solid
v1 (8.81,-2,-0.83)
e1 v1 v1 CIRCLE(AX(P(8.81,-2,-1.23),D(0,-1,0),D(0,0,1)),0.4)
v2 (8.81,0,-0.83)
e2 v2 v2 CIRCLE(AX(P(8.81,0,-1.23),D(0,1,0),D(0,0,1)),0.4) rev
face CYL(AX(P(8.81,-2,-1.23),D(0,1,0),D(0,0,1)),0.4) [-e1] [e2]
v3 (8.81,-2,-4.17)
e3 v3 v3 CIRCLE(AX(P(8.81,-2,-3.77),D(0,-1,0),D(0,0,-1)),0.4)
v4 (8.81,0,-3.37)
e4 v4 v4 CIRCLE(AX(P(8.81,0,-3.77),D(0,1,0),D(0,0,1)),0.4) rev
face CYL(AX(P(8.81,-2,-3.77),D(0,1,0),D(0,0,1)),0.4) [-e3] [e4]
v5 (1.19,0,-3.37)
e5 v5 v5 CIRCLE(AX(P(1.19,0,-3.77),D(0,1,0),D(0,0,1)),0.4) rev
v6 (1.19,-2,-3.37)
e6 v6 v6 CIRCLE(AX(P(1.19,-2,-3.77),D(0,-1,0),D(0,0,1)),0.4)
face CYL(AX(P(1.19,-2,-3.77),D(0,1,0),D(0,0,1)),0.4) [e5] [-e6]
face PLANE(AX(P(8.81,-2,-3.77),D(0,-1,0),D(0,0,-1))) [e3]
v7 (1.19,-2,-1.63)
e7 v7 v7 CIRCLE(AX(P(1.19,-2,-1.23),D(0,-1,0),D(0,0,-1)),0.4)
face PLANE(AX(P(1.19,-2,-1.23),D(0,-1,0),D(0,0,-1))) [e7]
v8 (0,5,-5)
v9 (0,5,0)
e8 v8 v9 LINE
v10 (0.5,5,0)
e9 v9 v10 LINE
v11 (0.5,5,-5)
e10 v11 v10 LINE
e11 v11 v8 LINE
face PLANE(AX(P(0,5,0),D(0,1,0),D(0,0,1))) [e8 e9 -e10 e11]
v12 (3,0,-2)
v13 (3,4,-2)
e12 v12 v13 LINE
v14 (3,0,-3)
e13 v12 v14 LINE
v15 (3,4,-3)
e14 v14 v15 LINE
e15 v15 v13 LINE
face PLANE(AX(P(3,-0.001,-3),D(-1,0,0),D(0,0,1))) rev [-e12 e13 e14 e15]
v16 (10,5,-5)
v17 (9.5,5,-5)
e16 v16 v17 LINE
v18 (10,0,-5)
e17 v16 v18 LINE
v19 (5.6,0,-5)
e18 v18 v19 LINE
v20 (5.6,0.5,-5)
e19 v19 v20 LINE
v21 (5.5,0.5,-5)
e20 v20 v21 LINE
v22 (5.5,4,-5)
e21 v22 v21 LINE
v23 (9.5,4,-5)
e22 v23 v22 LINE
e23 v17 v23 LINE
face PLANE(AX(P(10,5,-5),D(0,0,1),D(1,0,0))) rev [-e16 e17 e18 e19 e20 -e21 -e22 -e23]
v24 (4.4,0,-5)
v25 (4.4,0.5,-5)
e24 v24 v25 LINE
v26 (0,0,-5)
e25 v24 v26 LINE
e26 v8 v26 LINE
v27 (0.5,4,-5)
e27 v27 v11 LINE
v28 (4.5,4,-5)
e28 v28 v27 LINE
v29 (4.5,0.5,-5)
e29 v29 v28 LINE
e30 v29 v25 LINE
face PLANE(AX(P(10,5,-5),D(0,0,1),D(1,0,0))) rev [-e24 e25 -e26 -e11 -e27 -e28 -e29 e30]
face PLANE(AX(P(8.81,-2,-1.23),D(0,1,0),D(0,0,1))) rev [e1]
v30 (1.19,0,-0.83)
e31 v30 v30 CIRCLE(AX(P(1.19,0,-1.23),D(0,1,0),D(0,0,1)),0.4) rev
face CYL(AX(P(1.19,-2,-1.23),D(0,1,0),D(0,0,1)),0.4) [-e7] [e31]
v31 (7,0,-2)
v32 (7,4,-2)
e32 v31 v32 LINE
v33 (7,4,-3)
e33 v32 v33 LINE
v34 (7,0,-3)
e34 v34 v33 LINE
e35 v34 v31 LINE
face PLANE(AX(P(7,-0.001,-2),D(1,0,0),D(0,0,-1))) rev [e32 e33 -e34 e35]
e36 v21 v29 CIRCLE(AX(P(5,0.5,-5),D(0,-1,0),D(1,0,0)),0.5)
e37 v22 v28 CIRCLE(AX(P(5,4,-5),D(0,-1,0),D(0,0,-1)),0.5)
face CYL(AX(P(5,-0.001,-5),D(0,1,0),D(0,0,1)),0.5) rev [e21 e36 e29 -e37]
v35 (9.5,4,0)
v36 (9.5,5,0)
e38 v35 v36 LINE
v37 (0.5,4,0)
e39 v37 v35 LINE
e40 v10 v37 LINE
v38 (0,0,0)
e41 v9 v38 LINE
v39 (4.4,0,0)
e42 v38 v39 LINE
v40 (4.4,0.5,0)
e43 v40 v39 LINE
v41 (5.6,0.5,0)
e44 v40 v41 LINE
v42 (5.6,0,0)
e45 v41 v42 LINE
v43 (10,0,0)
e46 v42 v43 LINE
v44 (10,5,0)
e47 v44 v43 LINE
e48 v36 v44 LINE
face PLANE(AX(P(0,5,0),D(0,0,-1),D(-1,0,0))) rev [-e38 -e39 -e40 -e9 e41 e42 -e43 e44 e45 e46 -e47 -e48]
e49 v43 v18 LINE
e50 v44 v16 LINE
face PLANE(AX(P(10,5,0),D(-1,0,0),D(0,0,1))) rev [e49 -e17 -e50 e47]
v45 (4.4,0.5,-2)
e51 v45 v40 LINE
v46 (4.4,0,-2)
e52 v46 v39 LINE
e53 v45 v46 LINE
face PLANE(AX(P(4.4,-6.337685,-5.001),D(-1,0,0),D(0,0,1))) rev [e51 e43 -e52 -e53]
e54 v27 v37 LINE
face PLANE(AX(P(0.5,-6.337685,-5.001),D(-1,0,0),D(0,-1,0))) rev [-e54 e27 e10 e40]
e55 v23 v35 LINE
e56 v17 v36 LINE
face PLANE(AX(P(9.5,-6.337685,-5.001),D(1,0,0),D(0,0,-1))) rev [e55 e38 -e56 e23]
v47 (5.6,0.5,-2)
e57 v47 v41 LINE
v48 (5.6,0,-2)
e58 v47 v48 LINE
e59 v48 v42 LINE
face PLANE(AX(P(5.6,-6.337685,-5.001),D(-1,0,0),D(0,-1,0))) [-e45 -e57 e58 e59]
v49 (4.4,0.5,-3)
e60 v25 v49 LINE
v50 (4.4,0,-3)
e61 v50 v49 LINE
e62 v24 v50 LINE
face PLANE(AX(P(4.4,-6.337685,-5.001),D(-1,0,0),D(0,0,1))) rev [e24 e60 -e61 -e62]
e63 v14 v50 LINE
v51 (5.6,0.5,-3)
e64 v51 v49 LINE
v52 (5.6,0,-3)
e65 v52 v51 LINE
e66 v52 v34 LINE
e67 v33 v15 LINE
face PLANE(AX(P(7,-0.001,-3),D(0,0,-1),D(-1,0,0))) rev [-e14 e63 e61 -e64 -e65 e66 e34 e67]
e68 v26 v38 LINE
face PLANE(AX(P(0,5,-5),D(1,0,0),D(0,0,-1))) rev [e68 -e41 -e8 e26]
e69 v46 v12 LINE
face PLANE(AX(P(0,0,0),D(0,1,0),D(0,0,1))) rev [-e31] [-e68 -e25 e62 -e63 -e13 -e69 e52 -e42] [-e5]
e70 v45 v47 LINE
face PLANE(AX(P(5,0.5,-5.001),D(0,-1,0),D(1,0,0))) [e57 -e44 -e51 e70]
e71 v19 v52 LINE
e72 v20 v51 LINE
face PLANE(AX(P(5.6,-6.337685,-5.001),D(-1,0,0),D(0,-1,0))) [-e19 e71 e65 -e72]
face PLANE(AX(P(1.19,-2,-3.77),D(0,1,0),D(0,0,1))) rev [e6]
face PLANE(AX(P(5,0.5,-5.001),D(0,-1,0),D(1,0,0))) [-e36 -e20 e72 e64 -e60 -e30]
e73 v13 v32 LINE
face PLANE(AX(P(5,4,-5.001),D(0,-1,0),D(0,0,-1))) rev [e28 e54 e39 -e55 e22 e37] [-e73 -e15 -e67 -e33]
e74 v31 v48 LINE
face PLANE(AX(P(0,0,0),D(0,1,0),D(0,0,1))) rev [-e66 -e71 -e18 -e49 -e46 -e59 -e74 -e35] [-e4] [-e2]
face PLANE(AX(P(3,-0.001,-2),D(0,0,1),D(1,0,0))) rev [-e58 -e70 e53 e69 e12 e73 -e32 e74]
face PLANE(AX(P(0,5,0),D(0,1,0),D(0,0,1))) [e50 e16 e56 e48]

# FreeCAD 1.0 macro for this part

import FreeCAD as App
import Part
import Sketcher
Q = App.Units.Quantity

doc = App.newDocument("Part")
body = doc.addObject("PartDesign::Body", "Body")

sketch1 = body.newObject("Sketcher::SketchObject", "Sketch")
sketch1.AttachmentSupport = (doc.getObject("XZ_Plane"), [""])
sketch1.MapMode = "FlatFace"
sketch1.addGeometry(Part.LineSegment(App.Vector(0, -5, 0), App.Vector(0, 0, 0)), False)
sketch1.addGeometry(Part.LineSegment(App.Vector(0, 0, 0), App.Vector(10, 0, 0)), False)
sketch1.addGeometry(Part.LineSegment(App.Vector(10, 0, 0), App.Vector(10, -5, 0)), False)
sketch1.addGeometry(Part.LineSegment(App.Vector(10, -5, 0), App.Vector(0, -5, 0)), False)
sketch1.addConstraint(Sketcher.Constraint("Coincident", 0, 2, 1, 1))
sketch1.addConstraint(Sketcher.Constraint("Coincident", 1, 2, 2, 1))
sketch1.addConstraint(Sketcher.Constraint("Coincident", 2, 2, 3, 1))
sketch1.addConstraint(Sketcher.Constraint("Coincident", 3, 2, 0, 1))
sketch1.addConstraint(Sketcher.Constraint("Vertical", 0))
sketch1.addConstraint(Sketcher.Constraint("Horizontal", 1))
sketch1.addConstraint(Sketcher.Constraint("Vertical", 2))
sketch1.addConstraint(Sketcher.Constraint("Horizontal", 3))
sketch1.addConstraint(Sketcher.Constraint("Coincident", 0, 2, -1, 1))
sketch1.addConstraint(Sketcher.Constraint("DistanceX", 1, 1, 1, 2, Q("10 mm")))
sketch1.addConstraint(Sketcher.Constraint("DistanceY", 0, 1, 0, 2, Q("5 mm")))
pad1 = body.newObject("PartDesign::Pad", "Pad")
pad1.Profile = sketch1
pad1.Length = 5
pad1.Reversed = True

sketch2 = body.newObject("Sketcher::SketchObject", "Sketch001")
sketch2.AttachmentSupport = (doc.getObject("XZ_Plane"), [""])
sketch2.MapMode = "FlatFace"
sketch2.AttachmentOffset = App.Placement(App.Vector(0, 0, -5), App.Rotation())
sketch2.addGeometry(Part.Circle(App.Vector(5, -5, 0), App.Vector(0, 0, 1), 0.5), False)
sketch2.addConstraint(Sketcher.Constraint("Diameter", 0, Q("1 mm")))
sketch2.addConstraint(Sketcher.Constraint("DistanceX", -1, 1, 0, 3, Q("5 mm")))
sketch2.addConstraint(Sketcher.Constraint("DistanceY", 0, 3, -1, 1, Q("5 mm")))
pocket1 = body.newObject("PartDesign::Pocket", "Pocket")
pocket1.Profile = sketch2
pocket1.Type = "UpToFirst"
pocket1.Reversed = True

sketch3 = body.newObject("Sketcher::SketchObject", "Sketch002")
sketch3.AttachmentSupport = (doc.getObject("XY_Plane"), [""])
sketch3.MapMode = "FlatFace"
sketch3.addGeometry(Part.LineSegment(App.Vector(0.5, 5, 0), App.Vector(0.5, 4, 0)), False)
sketch3.addGeometry(Part.LineSegment(App.Vector(0.5, 4, 0), App.Vector(5, 4, 0)), False)
sketch3.addGeometry(Part.LineSegment(App.Vector(5, 4, 0), App.Vector(5, 5, 0)), False)
sketch3.addGeometry(Part.LineSegment(App.Vector(5, 5, 0), App.Vector(0.5, 5, 0)), False)
sketch3.addConstraint(Sketcher.Constraint("Coincident", 0, 2, 1, 1))
sketch3.addConstraint(Sketcher.Constraint("Coincident", 1, 2, 2, 1))
sketch3.addConstraint(Sketcher.Constraint("Coincident", 2, 2, 3, 1))
sketch3.addConstraint(Sketcher.Constraint("Coincident", 3, 2, 0, 1))
sketch3.addConstraint(Sketcher.Constraint("Vertical", 0))
sketch3.addConstraint(Sketcher.Constraint("Horizontal", 1))
sketch3.addConstraint(Sketcher.Constraint("Vertical", 2))
sketch3.addConstraint(Sketcher.Constraint("Horizontal", 3))
sketch3.addConstraint(Sketcher.Constraint("DistanceY", 0, 2, 0, 1, Q("1 mm")))
sketch3.addConstraint(Sketcher.Constraint("DistanceX", 1, 1, 1, 2, Q("4.5 mm")))
sketch3.addConstraint(Sketcher.Constraint("DistanceY", -1, 1, 0, 2, Q("4 mm")))
sketch3.addConstraint(Sketcher.Constraint("DistanceX", -1, 1, 1, 2, Q("5 mm")))
pocket2 = body.newObject("PartDesign::Pocket", "Pocket001")
pocket2.Profile = sketch3
pocket2.Type = "UpToFirst"

sketch4 = body.newObject("Sketcher::SketchObject", "Sketch003")
sketch4.AttachmentSupport = (doc.getObject("XY_Plane"), [""])
sketch4.MapMode = "FlatFace"
sketch4.addGeometry(Part.LineSegment(App.Vector(5, 5, 0), App.Vector(5, 4, 0)), False)
sketch4.addGeometry(Part.LineSegment(App.Vector(5, 4, 0), App.Vector(9.5, 4, 0)), False)
sketch4.addGeometry(Part.LineSegment(App.Vector(9.5, 4, 0), App.Vector(9.5, 5, 0)), False)
sketch4.addGeometry(Part.LineSegment(App.Vector(9.5, 5, 0), App.Vector(5, 5, 0)), False)
sketch4.addConstraint(Sketcher.Constraint("Coincident", 0, 2, 1, 1))
sketch4.addConstraint(Sketcher.Constraint("Coincident", 1, 2, 2, 1))
sketch4.addConstraint(Sketcher.Constraint("Coincident", 2, 2, 3, 1))
sketch4.addConstraint(Sketcher.Constraint("Coincident", 3, 2, 0, 1))
sketch4.addConstraint(Sketcher.Constraint("Vertical", 0))
sketch4.addConstraint(Sketcher.Constraint("Horizontal", 1))
sketch4.addConstraint(Sketcher.Constraint("Vertical", 2))
sketch4.addConstraint(Sketcher.Constraint("Horizontal", 3))
sketch4.addConstraint(Sketcher.Constraint("DistanceY", 0, 2, 0, 1, Q("1 mm")))
sketch4.addConstraint(Sketcher.Constraint("DistanceX", 1, 1, 1, 2, Q("4.5 mm")))
sketch4.addConstraint(Sketcher.Constraint("DistanceX", -1, 1, 0, 2, Q("5 mm")))
sketch4.addConstraint(Sketcher.Constraint("DistanceY", -1, 1, 0, 2, Q("4 mm")))
pocket3 = body.newObject("PartDesign::Pocket", "Pocket002")
pocket3.Profile = sketch4
pocket3.Type = "UpToFirst"

sketch5 = body.newObject("Sketcher::SketchObject", "Sketch004")
sketch5.AttachmentSupport = (doc.getObject("XY_Plane"), [""])
sketch5.MapMode = "FlatFace"
sketch5.addGeometry(Part.LineSegment(App.Vector(4.4, 0.5, 0), App.Vector(4.4, 0, 0)), False)
sketch5.addGeometry(Part.LineSegment(App.Vector(4.4, 0, 0), App.Vector(5, 0, 0)), False)
sketch5.addGeometry(Part.LineSegment(App.Vector(5, 0, 0), App.Vector(5, 0.5, 0)), False)
sketch5.addGeometry(Part.LineSegment(App.Vector(5, 0.5, 0), App.Vector(4.4, 0.5, 0)), False)
sketch5.addConstraint(Sketcher.Constraint("Coincident", 0, 2, 1, 1))
sketch5.addConstraint(Sketcher.Constraint("Coincident", 1, 2, 2, 1))
sketch5.addConstraint(Sketcher.Constraint("Coincident", 2, 2, 3, 1))
sketch5.addConstraint(Sketcher.Constraint("Coincident", 3, 2, 0, 1))
sketch5.addConstraint(Sketcher.Constraint("Vertical", 0))
sketch5.addConstraint(Sketcher.Constraint("Horizontal", 1))
sketch5.addConstraint(Sketcher.Constraint("Vertical", 2))
sketch5.addConstraint(Sketcher.Constraint("Horizontal", 3))
sketch5.addConstraint(Sketcher.Constraint("PointOnObject", 0, 2, -1))
sketch5.addConstraint(Sketcher.Constraint("DistanceX", 1, 1, 1, 2, Q("0.6 mm")))
sketch5.addConstraint(Sketcher.Constraint("DistanceY", 0, 2, 0, 1, Q("0.5 mm")))
sketch5.addConstraint(Sketcher.Constraint("DistanceX", -1, 1, 1, 2, Q("5 mm")))
pocket4 = body.newObject("PartDesign::Pocket", "Pocket003")
pocket4.Profile = sketch5
pocket4.Type = "UpToFirst"

sketch6 = body.newObject("Sketcher::SketchObject", "Sketch005")
sketch6.AttachmentSupport = (doc.getObject("XY_Plane"), [""])
sketch6.MapMode = "FlatFace"
sketch6.addGeometry(Part.LineSegment(App.Vector(5, 0.5, 0), App.Vector(5, 0, 0)), False)
sketch6.addGeometry(Part.LineSegment(App.Vector(5, 0, 0), App.Vector(5.6, 0, 0)), False)
sketch6.addGeometry(Part.LineSegment(App.Vector(5.6, 0, 0), App.Vector(5.6, 0.5, 0)), False)
sketch6.addGeometry(Part.LineSegment(App.Vector(5.6, 0.5, 0), App.Vector(5, 0.5, 0)), False)
sketch6.addConstraint(Sketcher.Constraint("Coincident", 0, 2, 1, 1))
sketch6.addConstraint(Sketcher.Constraint("Coincident", 1, 2, 2, 1))
sketch6.addConstraint(Sketcher.Constraint("Coincident", 2, 2, 3, 1))
sketch6.addConstraint(Sketcher.Constraint("Coincident", 3, 2, 0, 1))
sketch6.addConstraint(Sketcher.Constraint("Vertical", 0))
sketch6.addConstraint(Sketcher.Constraint("Horizontal", 1))
sketch6.addConstraint(Sketcher.Constraint("Vertical", 2))
sketch6.addConstraint(Sketcher.Constraint("Horizontal", 3))
sketch6.addConstraint(Sketcher.Constraint("PointOnObject", 0, 2, -1))
sketch6.addConstraint(Sketcher.Constraint("DistanceX", 1, 1, 1, 2, Q("0.6 mm")))
sketch6.addConstraint(Sketcher.Constraint("DistanceY", 0, 2, 0, 1, Q("0.5 mm")))
sketch6.addConstraint(Sketcher.Constraint("DistanceX", -1, 1, 0, 2, Q("5 mm")))
pocket5 = body.newObject("PartDesign::Pocket", "Pocket004")
pocket5.Profile = sketch6
pocket5.Type = "UpToFirst"

sketch7 = body.newObject("Sketcher::SketchObject", "Sketch006")
sketch7.AttachmentSupport = (doc.getObject("XZ_Plane"), [""])
sketch7.MapMode = "FlatFace"
sketch7.AttachmentOffset = App.Placement(App.Vector(0, 0, -4), App.Rotation())
sketch7.addGeometry(Part.LineSegment(App.Vector(3, -3, 0), App.Vector(3, -2, 0)), False)
sketch7.addGeometry(Part.LineSegment(App.Vector(3, -2, 0), App.Vector(7, -2, 0)), False)
sketch7.addGeometry(Part.LineSegment(App.Vector(7, -2, 0), App.Vector(7, -3, 0)), False)
sketch7.addGeometry(Part.LineSegment(App.Vector(7, -3, 0), App.Vector(3, -3, 0)), False)
sketch7.addConstraint(Sketcher.Constraint("Coincident", 0, 2, 1, 1))
sketch7.addConstraint(Sketcher.Constraint("Coincident", 1, 2, 2, 1))
sketch7.addConstraint(Sketcher.Constraint("Coincident", 2, 2, 3, 1))
sketch7.addConstraint(Sketcher.Constraint("Coincident", 3, 2, 0, 1))
sketch7.addConstraint(Sketcher.Constraint("Vertical", 0))
sketch7.addConstraint(Sketcher.Constraint("Horizontal", 1))
sketch7.addConstraint(Sketcher.Constraint("Vertical", 2))
sketch7.addConstraint(Sketcher.Constraint("Horizontal", 3))
sketch7.addConstraint(Sketcher.Constraint("DistanceX", 1, 1, 1, 2, Q("4 mm")))
sketch7.addConstraint(Sketcher.Constraint("DistanceY", 0, 1, 0, 2, Q("1 mm")))
sketch7.addConstraint(Sketcher.Constraint("DistanceX", -1, 1, 0, 2, Q("3 mm")))
sketch7.addConstraint(Sketcher.Constraint("DistanceY", 0, 2, -1, 1, Q("2 mm")))
pocket6 = body.newObject("PartDesign::Pocket", "Pocket005")
pocket6.Profile = sketch7
pocket6.Length = 4
pocket6.Reversed = True

sketch8 = body.newObject("Sketcher::SketchObject", "Sketch007")
sketch8.AttachmentSupport = (doc.getObject("XZ_Plane"), [""])
sketch8.MapMode = "FlatFace"
sketch8.addGeometry(Part.Circle(App.Vector(1.19, -1.23, 0), App.Vector(0, 0, 1), 0.4), False)
sketch8.addGeometry(Part.Circle(App.Vector(1.19, -3.77, 0), App.Vector(0, 0, 1), 0.4), False)
sketch8.addGeometry(Part.Circle(App.Vector(8.81, -3.77, 0), App.Vector(0, 0, 1), 0.4), False)
sketch8.addGeometry(Part.Circle(App.Vector(8.81, -1.23, 0), App.Vector(0, 0, 1), 0.4), False)
sketch8.addConstraint(Sketcher.Constraint("Equal", 0, 1))
sketch8.addConstraint(Sketcher.Constraint("Equal", 1, 2))
sketch8.addConstraint(Sketcher.Constraint("Equal", 2, 3))
sketch8.addConstraint(Sketcher.Constraint("Horizontal", 1, 3, 2, 3))
sketch8.addConstraint(Sketcher.Constraint("Horizontal", 0, 3, 3, 3))
sketch8.addConstraint(Sketcher.Constraint("Vertical", 0, 3, 1, 3))
sketch8.addConstraint(Sketcher.Constraint("Vertical", 2, 3, 3, 3))
sketch8.addConstraint(Sketcher.Constraint("Diameter", 0, Q("0.8 mm")))
sketch8.addConstraint(Sketcher.Constraint("DistanceX", -1, 1, 0, 3, Q("1.19 mm")))
sketch8.addConstraint(Sketcher.Constraint("DistanceY", 0, 3, -1, 1, Q("1.23 mm")))
sketch8.addConstraint(Sketcher.Constraint("DistanceY", 1, 3, -1, 1, Q("3.77 mm")))
sketch8.addConstraint(Sketcher.Constraint("DistanceX", -1, 1, 2, 3, Q("8.81 mm")))
pad2 = body.newObject("PartDesign::Pad", "Pad001")
pad2.Profile = sketch8
pad2.Length = 2

doc.recompute()
